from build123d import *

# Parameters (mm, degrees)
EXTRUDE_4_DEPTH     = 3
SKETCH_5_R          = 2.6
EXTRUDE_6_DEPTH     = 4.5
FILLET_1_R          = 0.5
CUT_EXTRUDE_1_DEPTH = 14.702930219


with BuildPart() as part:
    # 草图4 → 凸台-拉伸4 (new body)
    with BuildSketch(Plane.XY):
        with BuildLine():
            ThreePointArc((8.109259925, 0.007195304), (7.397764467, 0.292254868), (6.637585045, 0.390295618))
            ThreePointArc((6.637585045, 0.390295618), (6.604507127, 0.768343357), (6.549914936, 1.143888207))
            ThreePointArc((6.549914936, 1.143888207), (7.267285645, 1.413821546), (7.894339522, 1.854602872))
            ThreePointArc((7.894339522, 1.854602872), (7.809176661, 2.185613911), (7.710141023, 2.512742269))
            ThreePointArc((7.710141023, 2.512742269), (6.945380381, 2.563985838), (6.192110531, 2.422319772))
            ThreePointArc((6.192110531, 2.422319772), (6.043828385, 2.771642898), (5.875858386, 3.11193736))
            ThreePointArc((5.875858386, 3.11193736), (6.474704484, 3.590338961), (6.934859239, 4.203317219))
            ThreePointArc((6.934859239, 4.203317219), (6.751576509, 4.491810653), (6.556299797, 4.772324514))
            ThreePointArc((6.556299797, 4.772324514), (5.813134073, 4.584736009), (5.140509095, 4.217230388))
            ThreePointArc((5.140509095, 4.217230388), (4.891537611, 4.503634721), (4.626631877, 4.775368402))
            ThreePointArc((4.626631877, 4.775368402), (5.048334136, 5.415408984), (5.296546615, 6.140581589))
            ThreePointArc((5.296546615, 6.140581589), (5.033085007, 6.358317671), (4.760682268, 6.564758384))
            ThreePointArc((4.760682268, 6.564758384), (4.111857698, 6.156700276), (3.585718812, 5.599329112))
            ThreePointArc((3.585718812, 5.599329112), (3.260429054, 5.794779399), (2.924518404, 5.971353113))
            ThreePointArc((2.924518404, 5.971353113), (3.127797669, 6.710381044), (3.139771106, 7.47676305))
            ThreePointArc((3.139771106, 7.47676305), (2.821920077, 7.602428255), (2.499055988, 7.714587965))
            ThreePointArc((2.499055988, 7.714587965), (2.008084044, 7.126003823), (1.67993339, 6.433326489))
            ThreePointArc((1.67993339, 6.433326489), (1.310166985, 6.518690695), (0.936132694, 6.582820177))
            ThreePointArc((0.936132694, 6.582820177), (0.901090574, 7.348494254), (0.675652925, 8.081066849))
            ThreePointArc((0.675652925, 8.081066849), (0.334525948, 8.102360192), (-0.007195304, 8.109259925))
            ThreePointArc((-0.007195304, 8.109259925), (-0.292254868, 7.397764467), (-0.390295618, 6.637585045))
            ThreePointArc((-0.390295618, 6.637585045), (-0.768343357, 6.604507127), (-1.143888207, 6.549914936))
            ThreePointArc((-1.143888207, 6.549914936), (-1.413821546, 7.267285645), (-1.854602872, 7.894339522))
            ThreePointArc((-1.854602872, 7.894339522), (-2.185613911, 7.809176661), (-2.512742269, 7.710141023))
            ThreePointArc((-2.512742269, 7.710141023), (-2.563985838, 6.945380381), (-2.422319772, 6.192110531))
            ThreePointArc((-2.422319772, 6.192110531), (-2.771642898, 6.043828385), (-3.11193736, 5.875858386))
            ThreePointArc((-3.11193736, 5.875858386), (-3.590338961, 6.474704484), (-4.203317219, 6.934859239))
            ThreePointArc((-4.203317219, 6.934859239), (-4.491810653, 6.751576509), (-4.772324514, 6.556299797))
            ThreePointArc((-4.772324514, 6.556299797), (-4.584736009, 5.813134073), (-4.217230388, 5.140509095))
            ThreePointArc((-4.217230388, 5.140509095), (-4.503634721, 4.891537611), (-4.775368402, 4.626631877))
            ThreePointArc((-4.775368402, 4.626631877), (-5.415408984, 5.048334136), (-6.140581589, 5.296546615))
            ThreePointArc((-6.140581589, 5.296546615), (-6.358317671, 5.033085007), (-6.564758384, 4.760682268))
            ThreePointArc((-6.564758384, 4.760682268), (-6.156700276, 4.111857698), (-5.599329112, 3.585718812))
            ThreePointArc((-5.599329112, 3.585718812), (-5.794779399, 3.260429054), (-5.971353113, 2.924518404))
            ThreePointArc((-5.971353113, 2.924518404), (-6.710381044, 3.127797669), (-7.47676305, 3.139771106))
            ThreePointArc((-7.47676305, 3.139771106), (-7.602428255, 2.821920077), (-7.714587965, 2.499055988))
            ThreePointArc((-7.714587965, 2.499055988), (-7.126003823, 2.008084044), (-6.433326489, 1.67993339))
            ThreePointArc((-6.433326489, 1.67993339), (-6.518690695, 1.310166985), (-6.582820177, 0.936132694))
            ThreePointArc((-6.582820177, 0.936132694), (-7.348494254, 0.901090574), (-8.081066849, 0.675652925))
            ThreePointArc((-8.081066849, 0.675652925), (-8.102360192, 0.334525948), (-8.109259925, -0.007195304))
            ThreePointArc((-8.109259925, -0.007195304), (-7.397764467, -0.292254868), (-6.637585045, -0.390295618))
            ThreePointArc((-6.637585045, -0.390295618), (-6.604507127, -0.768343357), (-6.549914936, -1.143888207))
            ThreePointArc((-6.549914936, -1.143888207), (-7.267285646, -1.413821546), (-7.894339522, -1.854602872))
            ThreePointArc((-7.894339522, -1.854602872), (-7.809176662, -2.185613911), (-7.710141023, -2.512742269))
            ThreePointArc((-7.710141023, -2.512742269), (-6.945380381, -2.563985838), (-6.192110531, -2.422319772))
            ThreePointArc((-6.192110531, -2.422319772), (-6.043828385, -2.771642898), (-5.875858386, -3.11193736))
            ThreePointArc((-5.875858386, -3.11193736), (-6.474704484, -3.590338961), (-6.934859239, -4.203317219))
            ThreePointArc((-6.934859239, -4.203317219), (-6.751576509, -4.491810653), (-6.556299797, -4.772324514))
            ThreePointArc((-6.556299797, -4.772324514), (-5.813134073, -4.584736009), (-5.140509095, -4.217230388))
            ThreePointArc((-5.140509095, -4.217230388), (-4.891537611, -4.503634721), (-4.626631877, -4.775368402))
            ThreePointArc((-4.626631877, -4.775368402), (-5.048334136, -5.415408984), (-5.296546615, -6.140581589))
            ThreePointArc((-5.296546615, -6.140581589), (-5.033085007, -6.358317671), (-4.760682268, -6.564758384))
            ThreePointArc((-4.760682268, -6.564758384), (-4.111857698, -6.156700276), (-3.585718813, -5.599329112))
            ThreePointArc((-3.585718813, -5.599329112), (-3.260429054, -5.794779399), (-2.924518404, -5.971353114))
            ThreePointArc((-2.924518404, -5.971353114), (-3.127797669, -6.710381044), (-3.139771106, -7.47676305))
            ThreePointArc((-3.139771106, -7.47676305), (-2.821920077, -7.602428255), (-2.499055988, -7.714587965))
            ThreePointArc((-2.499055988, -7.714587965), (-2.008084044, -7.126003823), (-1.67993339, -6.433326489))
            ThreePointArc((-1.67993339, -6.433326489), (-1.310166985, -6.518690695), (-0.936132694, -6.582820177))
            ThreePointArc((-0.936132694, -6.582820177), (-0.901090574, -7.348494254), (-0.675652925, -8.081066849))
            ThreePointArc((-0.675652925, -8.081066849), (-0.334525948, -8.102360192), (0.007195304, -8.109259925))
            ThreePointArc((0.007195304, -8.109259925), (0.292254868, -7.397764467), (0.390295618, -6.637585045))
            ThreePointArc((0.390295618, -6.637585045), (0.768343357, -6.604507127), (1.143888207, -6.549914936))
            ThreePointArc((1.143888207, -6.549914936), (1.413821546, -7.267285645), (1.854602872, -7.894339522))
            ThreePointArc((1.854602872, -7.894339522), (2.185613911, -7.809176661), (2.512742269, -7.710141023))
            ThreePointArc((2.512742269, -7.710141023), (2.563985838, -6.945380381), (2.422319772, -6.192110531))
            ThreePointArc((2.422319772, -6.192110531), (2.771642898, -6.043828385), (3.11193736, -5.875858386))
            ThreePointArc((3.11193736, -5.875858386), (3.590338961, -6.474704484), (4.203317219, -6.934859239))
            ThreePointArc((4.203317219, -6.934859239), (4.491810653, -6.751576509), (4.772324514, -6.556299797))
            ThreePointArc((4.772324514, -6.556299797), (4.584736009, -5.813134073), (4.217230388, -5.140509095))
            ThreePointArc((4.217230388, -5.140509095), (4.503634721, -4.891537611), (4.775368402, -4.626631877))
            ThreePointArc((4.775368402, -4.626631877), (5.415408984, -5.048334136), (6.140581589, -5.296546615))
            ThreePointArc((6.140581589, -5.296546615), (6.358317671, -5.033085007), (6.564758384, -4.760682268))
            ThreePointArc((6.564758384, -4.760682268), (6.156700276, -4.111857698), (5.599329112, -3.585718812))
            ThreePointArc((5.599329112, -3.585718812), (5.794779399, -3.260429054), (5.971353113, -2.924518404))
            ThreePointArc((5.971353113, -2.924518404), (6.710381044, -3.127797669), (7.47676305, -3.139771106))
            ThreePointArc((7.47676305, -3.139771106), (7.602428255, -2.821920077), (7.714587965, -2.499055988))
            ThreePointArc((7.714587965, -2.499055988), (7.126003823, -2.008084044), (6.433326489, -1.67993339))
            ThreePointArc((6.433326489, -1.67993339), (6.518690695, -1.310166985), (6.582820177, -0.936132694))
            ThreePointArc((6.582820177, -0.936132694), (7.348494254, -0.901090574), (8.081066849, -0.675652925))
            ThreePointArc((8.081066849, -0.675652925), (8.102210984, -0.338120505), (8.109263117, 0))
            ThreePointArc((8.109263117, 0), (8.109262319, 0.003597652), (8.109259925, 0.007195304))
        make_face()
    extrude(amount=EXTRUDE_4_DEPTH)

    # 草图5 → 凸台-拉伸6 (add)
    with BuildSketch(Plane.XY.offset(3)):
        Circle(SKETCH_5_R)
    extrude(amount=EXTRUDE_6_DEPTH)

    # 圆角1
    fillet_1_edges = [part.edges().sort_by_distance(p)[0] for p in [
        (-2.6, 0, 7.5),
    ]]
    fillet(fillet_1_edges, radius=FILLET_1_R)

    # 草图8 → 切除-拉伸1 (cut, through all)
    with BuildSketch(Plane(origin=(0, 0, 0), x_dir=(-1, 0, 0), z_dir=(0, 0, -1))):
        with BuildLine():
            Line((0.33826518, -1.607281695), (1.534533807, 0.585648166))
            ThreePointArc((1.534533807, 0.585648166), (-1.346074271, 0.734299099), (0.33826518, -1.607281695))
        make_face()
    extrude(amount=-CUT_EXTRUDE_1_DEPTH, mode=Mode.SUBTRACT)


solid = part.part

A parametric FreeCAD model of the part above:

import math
import FreeCAD as App
import Part
import Sketcher
from FreeCAD import Vector
Q = App.Units.Quantity


def edges_at(feature, points):
    """Names of the edges that pass closest to the given points."""
    edges = feature.Shape.Edges
    near = lambda p: min(range(len(edges)), key=lambda i: edges[i].distToShape(Part.Vertex(*p))[0])
    return sorted({f"Edge{near(p) + 1}" for p in points})

doc = App.newDocument("Part")
params = doc.addObject("Spreadsheet::Sheet", "Params")
for row, (alias, value) in enumerate([
    ("sketch1_radius", "3.04 mm"),
    ("pad1_length", "3 mm"),
    ("sketch2_diameter", "5.2 mm"),
    ("pad2_length", "4.5 mm"),
    ("fillet_radius", "0.5 mm"),
    ("sketch3_radius", "1.6 mm"),
], start=1):
    params.set(f"A{row}", alias)
    params.set(f"B{row}", "=" + value)
    params.setAlias(f"B{row}", alias)

body = doc.addObject("PartDesign::Body", "Body")

# Sketch on XY plane
sketch1 = body.newObject("Sketcher::SketchObject", "Sketch")
sketch1.AttachmentSupport = (doc.getObject("XY_Plane"), [""])
sketch1.MapMode = "FlatFace"
sketch1.addGeometry([
    Part.ArcOfCircle(Part.Circle(Vector(6.632, -2.65, 0), Vector(0, 0, 1), 3.04), math.radians(61), math.radians(90)),  # 0
    Part.ArcOfCircle(Part.Circle(Vector(0, 0, 0), Vector(0, 0, 1), 6.649), math.radians(3.37), math.radians(9.91)),  # 1
    Part.ArcOfCircle(Part.Circle(Vector(5.847, 4.101, 0), Vector(0, 0, 1), 3.04), math.radians(-77), math.radians(-48)),  # 2
    Part.ArcOfCircle(Part.Circle(Vector(0, 0, 0), Vector(0, 0, 1), 8.109), math.radians(13.22), math.radians(18.05)),  # 3
    Part.ArcOfCircle(Part.Circle(Vector(7.126, -0.471, 0), Vector(0, 0, 1), 3.04), math.radians(79), math.radians(108)),  # 4
    Part.ArcOfCircle(Part.Circle(Vector(0, 0, 0), Vector(0, 0, 1), 6.649), math.radians(21.37), math.radians(27.91)),  # 5
    Part.ArcOfCircle(Part.Circle(Vector(4.293, 5.707, 0), Vector(0, 0, 1), 3.04), math.radians(-59), math.radians(-30)),  # 6
    Part.ArcOfCircle(Part.Circle(Vector(0, 0, 0), Vector(0, 0, 1), 8.109), math.radians(31.22), math.radians(36.05)),  # 7
    Part.ArcOfCircle(Part.Circle(Vector(6.923, 1.754, 0), Vector(0, 0, 1), 3.04), math.radians(97), math.radians(126)),  # 8
    Part.ArcOfCircle(Part.Circle(Vector(0, 0, 0), Vector(0, 0, 1), 6.649), math.radians(39.37), math.radians(45.91)),  # 9
    Part.ArcOfCircle(Part.Circle(Vector(2.319, 6.755, 0), Vector(0, 0, 1), 3.04), math.radians(-41), math.radians(-12)),  # 10
    Part.ArcOfCircle(Part.Circle(Vector(0, 0, 0), Vector(0, 0, 1), 8.109), math.radians(49.22), math.radians(54.05)),  # 11
    Part.ArcOfCircle(Part.Circle(Vector(6.042, 3.808, 0), Vector(0, 0, 1), 3.04), math.radians(115), math.radians(144)),  # 12
    Part.ArcOfCircle(Part.Circle(Vector(0, 0, 0), Vector(0, 0, 1), 6.649), math.radians(57.37), math.radians(63.91)),  # 13
    Part.ArcOfCircle(Part.Circle(Vector(0.118, 7.141, 0), Vector(0, 0, 1), 3.04), math.radians(-23), math.radians(6)),  # 14
    Part.ArcOfCircle(Part.Circle(Vector(0, 0, 0), Vector(0, 0, 1), 8.109), math.radians(67.22), math.radians(72.05)),  # 15
    Part.ArcOfCircle(Part.Circle(Vector(4.569, 5.489, 0), Vector(0, 0, 1), 3.04), math.radians(133), math.radians(162)),  # 16
    Part.ArcOfCircle(Part.Circle(Vector(0, 0, 0), Vector(0, 0, 1), 6.649), math.radians(75.37), math.radians(81.91)),  # 17
    Part.ArcOfCircle(Part.Circle(Vector(-2.094, 6.828, 0), Vector(0, 0, 1), 3.04), math.radians(-5), math.radians(24)),  # 18
    Part.ArcOfCircle(Part.Circle(Vector(0, 0, 0), Vector(0, 0, 1), 8.109), math.radians(85.22), math.radians(90.05)),  # 19
    Part.ArcOfCircle(Part.Circle(Vector(2.65, 6.632, 0), Vector(0, 0, 1), 3.04), math.radians(151), math.radians(180)),  # 20
    Part.ArcOfCircle(Part.Circle(Vector(0, 0, 0), Vector(0, 0, 1), 6.649), math.radians(93.37), math.radians(99.91)),  # 21
    Part.ArcOfCircle(Part.Circle(Vector(-4.101, 5.847, 0), Vector(0, 0, 1), 3.04), math.radians(13), math.radians(42)),  # 22
    Part.ArcOfCircle(Part.Circle(Vector(0, 0, 0), Vector(0, 0, 1), 8.109), math.radians(103.22), math.radians(108.05)),  # 23
    Part.ArcOfCircle(Part.Circle(Vector(0.471, 7.126, 0), Vector(0, 0, 1), 3.04), math.radians(169), math.radians(198)),  # 24
    Part.ArcOfCircle(Part.Circle(Vector(0, 0, 0), Vector(0, 0, 1), 6.649), math.radians(111.37), math.radians(117.91)),  # 25
    Part.ArcOfCircle(Part.Circle(Vector(-5.707, 4.293, 0), Vector(0, 0, 1), 3.04), math.radians(31), math.radians(60)),  # 26
    Part.ArcOfCircle(Part.Circle(Vector(0, 0, 0), Vector(0, 0, 1), 8.109), math.radians(121.22), math.radians(126.05)),  # 27
    Part.ArcOfCircle(Part.Circle(Vector(-1.754, 6.923, 0), Vector(0, 0, 1), 3.04), math.radians(-173), math.radians(-144)),  # 28
    Part.ArcOfCircle(Part.Circle(Vector(0, 0, 0), Vector(0, 0, 1), 6.649), math.radians(129.37), math.radians(135.91)),  # 29
    Part.ArcOfCircle(Part.Circle(Vector(-6.755, 2.319, 0), Vector(0, 0, 1), 3.04), math.radians(49), math.radians(78)),  # 30
    Part.ArcOfCircle(Part.Circle(Vector(0, 0, 0), Vector(0, 0, 1), 8.109), math.radians(139.22), math.radians(144.05)),  # 31
    Part.ArcOfCircle(Part.Circle(Vector(-3.808, 6.042, 0), Vector(0, 0, 1), 3.04), math.radians(-155), math.radians(-126)),  # 32
    Part.ArcOfCircle(Part.Circle(Vector(0, 0, 0), Vector(0, 0, 1), 6.649), math.radians(147.37), math.radians(153.91)),  # 33
    Part.ArcOfCircle(Part.Circle(Vector(-7.141, 0.118, 0), Vector(0, 0, 1), 3.04), math.radians(67), math.radians(96)),  # 34
    Part.ArcOfCircle(Part.Circle(Vector(0, 0, 0), Vector(0, 0, 1), 8.109), math.radians(157.22), math.radians(162.05)),  # 35
    Part.ArcOfCircle(Part.Circle(Vector(-5.489, 4.569, 0), Vector(0, 0, 1), 3.04), math.radians(-137), math.radians(-108)),  # 36
    Part.ArcOfCircle(Part.Circle(Vector(0, 0, 0), Vector(0, 0, 1), 6.649), math.radians(165.37), math.radians(171.91)),  # 37
    Part.ArcOfCircle(Part.Circle(Vector(-6.828, -2.094, 0), Vector(0, 0, 1), 3.04), math.radians(85), math.radians(114)),  # 38
    Part.ArcOfCircle(Part.Circle(Vector(0, 0, 0), Vector(0, 0, 1), 8.109), math.radians(175.22), math.radians(180.05)),  # 39
    Part.ArcOfCircle(Part.Circle(Vector(-6.632, 2.65, 0), Vector(0, 0, 1), 3.04), math.radians(-119), math.radians(-90)),  # 40
    Part.ArcOfCircle(Part.Circle(Vector(0, 0, 0), Vector(0, 0, 1), 6.649), math.radians(-176.63), math.radians(-170.09)),  # 41
    Part.ArcOfCircle(Part.Circle(Vector(-5.847, -4.101, 0), Vector(0, 0, 1), 3.04), math.radians(103), math.radians(132)),  # 42
    Part.ArcOfCircle(Part.Circle(Vector(0, 0, 0), Vector(0, 0, 1), 8.109), math.radians(-166.78), math.radians(-161.95)),  # 43
    Part.ArcOfCircle(Part.Circle(Vector(-7.126, 0.471, 0), Vector(0, 0, 1), 3.04), math.radians(-101), math.radians(-72)),  # 44
    Part.ArcOfCircle(Part.Circle(Vector(0, 0, 0), Vector(0, 0, 1), 6.649), math.radians(-158.63), math.radians(-152.09)),  # 45
    Part.ArcOfCircle(Part.Circle(Vector(-4.293, -5.707, 0), Vector(0, 0, 1), 3.04), math.radians(121), math.radians(150)),  # 46
    Part.ArcOfCircle(Part.Circle(Vector(0, 0, 0), Vector(0, 0, 1), 8.109), math.radians(-148.78), math.radians(-143.95)),  # 47
    Part.ArcOfCircle(Part.Circle(Vector(-6.923, -1.754, 0), Vector(0, 0, 1), 3.04), math.radians(-83), math.radians(-54)),  # 48
    Part.ArcOfCircle(Part.Circle(Vector(0, 0, 0), Vector(0, 0, 1), 6.649), math.radians(-140.63), math.radians(-134.09)),  # 49
    Part.ArcOfCircle(Part.Circle(Vector(-2.319, -6.755, 0), Vector(0, 0, 1), 3.04), math.radians(139), math.radians(168)),  # 50
    Part.ArcOfCircle(Part.Circle(Vector(0, 0, 0), Vector(0, 0, 1), 8.109), math.radians(-130.78), math.radians(-125.95)),  # 51
    Part.ArcOfCircle(Part.Circle(Vector(-6.042, -3.808, 0), Vector(0, 0, 1), 3.04), math.radians(-65), math.radians(-36)),  # 52
    Part.ArcOfCircle(Part.Circle(Vector(0, 0, 0), Vector(0, 0, 1), 6.649), math.radians(-122.63), math.radians(-116.09)),  # 53
    Part.ArcOfCircle(Part.Circle(Vector(-0.118, -7.141, 0), Vector(0, 0, 1), 3.04), math.radians(157), math.radians(186)),  # 54
    Part.ArcOfCircle(Part.Circle(Vector(0, 0, 0), Vector(0, 0, 1), 8.109), math.radians(-112.78), math.radians(-107.95)),  # 55
    Part.ArcOfCircle(Part.Circle(Vector(-4.569, -5.489, 0), Vector(0, 0, 1), 3.04), math.radians(-47), math.radians(-18)),  # 56
    Part.ArcOfCircle(Part.Circle(Vector(0, 0, 0), Vector(0, 0, 1), 6.649), math.radians(-104.63), math.radians(-98.09)),  # 57
    Part.ArcOfCircle(Part.Circle(Vector(2.094, -6.828, 0), Vector(0, 0, 1), 3.04), math.radians(175), math.radians(204)),  # 58
    Part.ArcOfCircle(Part.Circle(Vector(0, 0, 0), Vector(0, 0, 1), 8.109), math.radians(-94.78), math.radians(-89.95)),  # 59
    Part.ArcOfCircle(Part.Circle(Vector(-2.65, -6.632, 0), Vector(0, 0, 1), 3.04), math.radians(-29), math.radians(0)),  # 60
    Part.ArcOfCircle(Part.Circle(Vector(0, 0, 0), Vector(0, 0, 1), 6.649), math.radians(-86.63), math.radians(-80.09)),  # 61
    Part.ArcOfCircle(Part.Circle(Vector(4.101, -5.847, 0), Vector(0, 0, 1), 3.04), math.radians(-167), math.radians(-138)),  # 62
    Part.ArcOfCircle(Part.Circle(Vector(0, 0, 0), Vector(0, 0, 1), 8.109), math.radians(-76.78), math.radians(-71.95)),  # 63
    Part.ArcOfCircle(Part.Circle(Vector(-0.471, -7.126, 0), Vector(0, 0, 1), 3.04), math.radians(-11), math.radians(18)),  # 64
    Part.ArcOfCircle(Part.Circle(Vector(0, 0, 0), Vector(0, 0, 1), 6.649), math.radians(-68.63), math.radians(-62.09)),  # 65
    Part.ArcOfCircle(Part.Circle(Vector(5.707, -4.293, 0), Vector(0, 0, 1), 3.04), math.radians(-149), math.radians(-120)),  # 66
    Part.ArcOfCircle(Part.Circle(Vector(0, 0, 0), Vector(0, 0, 1), 8.109), math.radians(-58.78), math.radians(-53.95)),  # 67
    Part.ArcOfCircle(Part.Circle(Vector(1.754, -6.923, 0), Vector(0, 0, 1), 3.04), math.radians(7), math.radians(36)),  # 68
    Part.ArcOfCircle(Part.Circle(Vector(0, 0, 0), Vector(0, 0, 1), 6.649), math.radians(-50.63), math.radians(-44.09)),  # 69
    Part.ArcOfCircle(Part.Circle(Vector(6.755, -2.319, 0), Vector(0, 0, 1), 3.04), math.radians(-131), math.radians(-102)),  # 70
    Part.ArcOfCircle(Part.Circle(Vector(0, 0, 0), Vector(0, 0, 1), 8.109), math.radians(-40.78), math.radians(-35.95)),  # 71
    Part.ArcOfCircle(Part.Circle(Vector(3.808, -6.042, 0), Vector(0, 0, 1), 3.04), math.radians(25), math.radians(54)),  # 72
    Part.ArcOfCircle(Part.Circle(Vector(0, 0, 0), Vector(0, 0, 1), 6.649), math.radians(-32.63), math.radians(-26.09)),  # 73
    Part.ArcOfCircle(Part.Circle(Vector(7.141, -0.118, 0), Vector(0, 0, 1), 3.04), math.radians(-113), math.radians(-84)),  # 74
    Part.ArcOfCircle(Part.Circle(Vector(0, 0, 0), Vector(0, 0, 1), 8.109), math.radians(-22.78), math.radians(-17.95)),  # 75
    Part.ArcOfCircle(Part.Circle(Vector(5.489, -4.569, 0), Vector(0, 0, 1), 3.04), math.radians(43), math.radians(72)),  # 76
    Part.ArcOfCircle(Part.Circle(Vector(0, 0, 0), Vector(0, 0, 1), 6.649), math.radians(-14.63), math.radians(-8.09)),  # 77
    Part.ArcOfCircle(Part.Circle(Vector(6.828, 2.094, 0), Vector(0, 0, 1), 3.04), math.radians(-95), math.radians(-66)),  # 78
    Part.ArcOfCircle(Part.Circle(Vector(0, 0, 0), Vector(0, 0, 1), 8.109), math.radians(-4.78), math.radians(0)),  # 79
    Part.ArcOfCircle(Part.Circle(Vector(0, 0, 0), Vector(0, 0, 1), 8.11), math.radians(0), math.radians(0.05)),  # 80
], False)
sketch1.addConstraint([
    Sketcher.Constraint("Coincident", 0, 2, 1, 1),
    Sketcher.Constraint("Coincident", 1, 2, 2, 1),
    Sketcher.Constraint("Coincident", 2, 2, 3, 1),
    Sketcher.Constraint("Coincident", 3, 2, 4, 1),
    Sketcher.Constraint("Coincident", 4, 2, 5, 1),
    Sketcher.Constraint("Coincident", 5, 2, 6, 1),
    Sketcher.Constraint("Coincident", 6, 2, 7, 1),
    Sketcher.Constraint("Coincident", 7, 2, 8, 1),
    Sketcher.Constraint("Coincident", 8, 2, 9, 1),
    Sketcher.Constraint("Coincident", 9, 2, 10, 1),
    Sketcher.Constraint("Coincident", 10, 2, 11, 1),
    Sketcher.Constraint("Coincident", 11, 2, 12, 1),
    Sketcher.Constraint("Coincident", 12, 2, 13, 1),
    Sketcher.Constraint("Coincident", 13, 2, 14, 1),
    Sketcher.Constraint("Coincident", 14, 2, 15, 1),
    Sketcher.Constraint("Coincident", 15, 2, 16, 1),
    Sketcher.Constraint("Coincident", 16, 2, 17, 1),
    Sketcher.Constraint("Coincident", 17, 2, 18, 1),
    Sketcher.Constraint("Coincident", 18, 2, 19, 1),
    Sketcher.Constraint("Coincident", 19, 2, 20, 1),
    Sketcher.Constraint("Coincident", 20, 2, 21, 1),
    Sketcher.Constraint("Coincident", 21, 2, 22, 1),
    Sketcher.Constraint("Coincident", 22, 2, 23, 1),
    Sketcher.Constraint("Coincident", 23, 2, 24, 1),
    Sketcher.Constraint("Coincident", 24, 2, 25, 1),
    Sketcher.Constraint("Coincident", 25, 2, 26, 1),
    Sketcher.Constraint("Coincident", 26, 2, 27, 1),
    Sketcher.Constraint("Coincident", 27, 2, 28, 1),
    Sketcher.Constraint("Coincident", 28, 2, 29, 1),
    Sketcher.Constraint("Coincident", 29, 2, 30, 1),
    Sketcher.Constraint("Coincident", 30, 2, 31, 1),
    Sketcher.Constraint("Coincident", 31, 2, 32, 1),
    Sketcher.Constraint("Coincident", 32, 2, 33, 1),
    Sketcher.Constraint("Coincident", 33, 2, 34, 1),
    Sketcher.Constraint("Coincident", 34, 2, 35, 1),
    Sketcher.Constraint("Coincident", 35, 2, 36, 1),
    Sketcher.Constraint("Coincident", 36, 2, 37, 1),
    Sketcher.Constraint("Coincident", 37, 2, 38, 1),
    Sketcher.Constraint("Coincident", 38, 2, 39, 1),
    Sketcher.Constraint("Coincident", 39, 2, 40, 1),
    Sketcher.Constraint("Coincident", 40, 2, 41, 1),
    Sketcher.Constraint("Coincident", 41, 2, 42, 1),
    Sketcher.Constraint("Coincident", 42, 2, 43, 1),
    Sketcher.Constraint("Coincident", 43, 2, 44, 1),
    Sketcher.Constraint("Coincident", 44, 2, 45, 1),
    Sketcher.Constraint("Coincident", 45, 2, 46, 1),
    Sketcher.Constraint("Coincident", 46, 2, 47, 1),
    Sketcher.Constraint("Coincident", 47, 2, 48, 1),
    Sketcher.Constraint("Coincident", 48, 2, 49, 1),
    Sketcher.Constraint("Coincident", 49, 2, 50, 1),
    Sketcher.Constraint("Coincident", 50, 2, 51, 1),
    Sketcher.Constraint("Coincident", 51, 2, 52, 1),
    Sketcher.Constraint("Coincident", 52, 2, 53, 1),
    Sketcher.Constraint("Coincident", 53, 2, 54, 1),
    Sketcher.Constraint("Coincident", 54, 2, 55, 1),
    Sketcher.Constraint("Coincident", 55, 2, 56, 1),
    Sketcher.Constraint("Coincident", 56, 2, 57, 1),
    Sketcher.Constraint("Coincident", 57, 2, 58, 1),
    Sketcher.Constraint("Coincident", 58, 2, 59, 1),
    Sketcher.Constraint("Coincident", 59, 2, 60, 1),
    Sketcher.Constraint("Coincident", 60, 2, 61, 1),
    Sketcher.Constraint("Coincident", 61, 2, 62, 1),
    Sketcher.Constraint("Coincident", 62, 2, 63, 1),
    Sketcher.Constraint("Coincident", 63, 2, 64, 1),
    Sketcher.Constraint("Coincident", 64, 2, 65, 1),
    Sketcher.Constraint("Coincident", 65, 2, 66, 1),
    Sketcher.Constraint("Coincident", 66, 2, 67, 1),
    Sketcher.Constraint("Coincident", 67, 2, 68, 1),
    Sketcher.Constraint("Coincident", 68, 2, 69, 1),
    Sketcher.Constraint("Coincident", 69, 2, 70, 1),
    Sketcher.Constraint("Coincident", 70, 2, 71, 1),
    Sketcher.Constraint("Coincident", 71, 2, 72, 1),
    Sketcher.Constraint("Coincident", 72, 2, 73, 1),
    Sketcher.Constraint("Coincident", 73, 2, 74, 1),
    Sketcher.Constraint("Coincident", 74, 2, 75, 1),
    Sketcher.Constraint("Coincident", 75, 2, 76, 1),
    Sketcher.Constraint("Coincident", 76, 2, 77, 1),
    Sketcher.Constraint("Coincident", 77, 2, 78, 1),
    Sketcher.Constraint("Coincident", 78, 2, 79, 1),
    Sketcher.Constraint("Tangent", 79, 2, 80, 1),
    Sketcher.Constraint("Coincident", 80, 2, 0, 1),
    Sketcher.Constraint("Coincident", 1, 3, -1, 1),
    Sketcher.Constraint("Coincident", 3, 3, -1, 1),
    Sketcher.Constraint("Coincident", 5, 3, -1, 1),
    Sketcher.Constraint("Coincident", 7, 3, -1, 1),
    Sketcher.Constraint("Coincident", 9, 3, -1, 1),
    Sketcher.Constraint("Coincident", 11, 3, -1, 1),
    Sketcher.Constraint("Coincident", 13, 3, -1, 1),
    Sketcher.Constraint("Coincident", 15, 3, -1, 1),
    Sketcher.Constraint("Coincident", 17, 3, -1, 1),
    Sketcher.Constraint("Coincident", 19, 3, -1, 1),
    Sketcher.Constraint("Coincident", 21, 3, -1, 1),
    Sketcher.Constraint("Coincident", 23, 3, -1, 1),
    Sketcher.Constraint("Coincident", 25, 3, -1, 1),
    Sketcher.Constraint("Coincident", 27, 3, -1, 1),
    Sketcher.Constraint("Coincident", 29, 3, -1, 1),
    Sketcher.Constraint("Coincident", 31, 3, -1, 1),
    Sketcher.Constraint("Coincident", 33, 3, -1, 1),
    Sketcher.Constraint("Coincident", 35, 3, -1, 1),
    Sketcher.Constraint("Coincident", 37, 3, -1, 1),
    Sketcher.Constraint("Coincident", 39, 3, -1, 1),
    Sketcher.Constraint("Coincident", 41, 3, -1, 1),
    Sketcher.Constraint("Coincident", 43, 3, -1, 1),
    Sketcher.Constraint("Coincident", 45, 3, -1, 1),
    Sketcher.Constraint("Coincident", 47, 3, -1, 1),
    Sketcher.Constraint("Coincident", 49, 3, -1, 1),
    Sketcher.Constraint("Coincident", 51, 3, -1, 1),
    Sketcher.Constraint("Coincident", 53, 3, -1, 1),
    Sketcher.Constraint("Coincident", 55, 3, -1, 1),
    Sketcher.Constraint("Coincident", 57, 3, -1, 1),
    Sketcher.Constraint("Coincident", 59, 3, -1, 1),
    Sketcher.Constraint("Coincident", 61, 3, -1, 1),
    Sketcher.Constraint("Coincident", 63, 3, -1, 1),
    Sketcher.Constraint("Coincident", 65, 3, -1, 1),
    Sketcher.Constraint("Coincident", 67, 3, -1, 1),
    Sketcher.Constraint("Coincident", 69, 3, -1, 1),
    Sketcher.Constraint("Coincident", 71, 3, -1, 1),
    Sketcher.Constraint("Coincident", 73, 3, -1, 1),
    Sketcher.Constraint("Coincident", 75, 3, -1, 1),
    Sketcher.Constraint("Coincident", 77, 3, -1, 1),
    Sketcher.Constraint("Coincident", 79, 3, -1, 1),
    Sketcher.Constraint("Equal", 0, 2),
    Sketcher.Constraint("Equal", 2, 4),
    Sketcher.Constraint("Equal", 1, 5),
    Sketcher.Constraint("Equal", 4, 6),
    Sketcher.Constraint("Equal", 3, 7),
    Sketcher.Constraint("Equal", 6, 8),
    Sketcher.Constraint("Equal", 5, 9),
    Sketcher.Constraint("Equal", 8, 10),
    Sketcher.Constraint("Equal", 7, 11),
    Sketcher.Constraint("Equal", 10, 12),
    Sketcher.Constraint("Equal", 9, 13),
    Sketcher.Constraint("Equal", 12, 14),
    Sketcher.Constraint("Equal", 11, 15),
    Sketcher.Constraint("Equal", 14, 16),
    Sketcher.Constraint("Equal", 13, 17),
    Sketcher.Constraint("Equal", 16, 18),
    Sketcher.Constraint("Equal", 15, 19),
    Sketcher.Constraint("Equal", 18, 20),
    Sketcher.Constraint("Equal", 17, 21),
    Sketcher.Constraint("Equal", 20, 22),
    Sketcher.Constraint("Equal", 19, 23),
    Sketcher.Constraint("Equal", 22, 24),
    Sketcher.Constraint("Equal", 21, 25),
    Sketcher.Constraint("Equal", 24, 26),
    Sketcher.Constraint("Equal", 23, 27),
    Sketcher.Constraint("Equal", 26, 28),
    Sketcher.Constraint("Equal", 25, 29),
    Sketcher.Constraint("Equal", 28, 30),
    Sketcher.Constraint("Equal", 27, 31),
    Sketcher.Constraint("Equal", 30, 32),
    Sketcher.Constraint("Equal", 29, 33),
    Sketcher.Constraint("Equal", 32, 34),
    Sketcher.Constraint("Equal", 31, 35),
    Sketcher.Constraint("Equal", 34, 36),
    Sketcher.Constraint("Equal", 33, 37),
    Sketcher.Constraint("Equal", 36, 38),
    Sketcher.Constraint("Equal", 35, 39),
    Sketcher.Constraint("Equal", 38, 40),
    Sketcher.Constraint("Equal", 37, 41),
    Sketcher.Constraint("Equal", 40, 42),
    Sketcher.Constraint("Equal", 39, 43),
    Sketcher.Constraint("Equal", 42, 44),
    Sketcher.Constraint("Equal", 41, 45),
    Sketcher.Constraint("Equal", 44, 46),
    Sketcher.Constraint("Equal", 43, 47),
    Sketcher.Constraint("Equal", 46, 48),
    Sketcher.Constraint("Equal", 45, 49),
    Sketcher.Constraint("Equal", 48, 50),
    Sketcher.Constraint("Equal", 47, 51),
    Sketcher.Constraint("Equal", 50, 52),
    Sketcher.Constraint("Equal", 49, 53),
    Sketcher.Constraint("Equal", 52, 54),
    Sketcher.Constraint("Equal", 51, 55),
    Sketcher.Constraint("Equal", 54, 56),
    Sketcher.Constraint("Equal", 53, 57),
    Sketcher.Constraint("Equal", 56, 58),
    Sketcher.Constraint("Equal", 55, 59),
    Sketcher.Constraint("Equal", 58, 60),
    Sketcher.Constraint("Equal", 57, 61),
    Sketcher.Constraint("Equal", 60, 62),
    Sketcher.Constraint("Equal", 59, 63),
    Sketcher.Constraint("Equal", 62, 64),
    Sketcher.Constraint("Equal", 61, 65),
    Sketcher.Constraint("Equal", 64, 66),
    Sketcher.Constraint("Equal", 63, 67),
    Sketcher.Constraint("Equal", 66, 68),
    Sketcher.Constraint("Equal", 65, 69),
    Sketcher.Constraint("Equal", 68, 70),
    Sketcher.Constraint("Equal", 67, 71),
    Sketcher.Constraint("Equal", 70, 72),
    Sketcher.Constraint("Equal", 69, 73),
    Sketcher.Constraint("Equal", 72, 74),
    Sketcher.Constraint("Equal", 71, 75),
    Sketcher.Constraint("Equal", 74, 76),
    Sketcher.Constraint("Equal", 73, 77),
    Sketcher.Constraint("Equal", 76, 78),
    Sketcher.Constraint("Equal", 75, 79),
    Sketcher.Constraint("Symmetric", 0, 3, 40, 3, -1, 1),
    Sketcher.Constraint("Symmetric", 2, 3, 42, 3, -1, 1),
    Sketcher.Constraint("Symmetric", 4, 3, 44, 3, -1, 1),
    Sketcher.Constraint("Symmetric", 6, 3, 46, 3, -1, 1),
    Sketcher.Constraint("Symmetric", 8, 3, 48, 3, -1, 1),
    Sketcher.Constraint("Symmetric", 10, 3, 50, 3, -1, 1),
    Sketcher.Constraint("Symmetric", 12, 3, 52, 3, -1, 1),
    Sketcher.Constraint("Symmetric", 14, 3, 54, 3, -1, 1),
    Sketcher.Constraint("Symmetric", 16, 3, 56, 3, -1, 1),
    Sketcher.Constraint("Symmetric", 18, 3, 58, 3, -1, 1),
    Sketcher.Constraint("Symmetric", 20, 3, 60, 3, -1, 1),
    Sketcher.Constraint("Symmetric", 22, 3, 62, 3, -1, 1),
    Sketcher.Constraint("Symmetric", 24, 3, 64, 3, -1, 1),
    Sketcher.Constraint("Symmetric", 26, 3, 66, 3, -1, 1),
    Sketcher.Constraint("Symmetric", 28, 3, 68, 3, -1, 1),
    Sketcher.Constraint("Symmetric", 30, 3, 70, 3, -1, 1),
    Sketcher.Constraint("Symmetric", 32, 3, 72, 3, -1, 1),
    Sketcher.Constraint("Symmetric", 34, 3, 74, 3, -1, 1),
    Sketcher.Constraint("Symmetric", 36, 3, 76, 3, -1, 1),
    Sketcher.Constraint("Symmetric", 38, 3, 78, 3, -1, 1),
    Sketcher.Constraint("PointOnObject", 79, 2, -1),
    Sketcher.Constraint("Radius", 0, Q("3.04 mm")),
    Sketcher.Constraint("Radius", 1, Q("6.64905 mm")),
    Sketcher.Constraint("Radius", 3, Q("8.109264 mm")),
    Sketcher.Constraint("Radius", 80, Q("8.109714 mm")),
    Sketcher.Constraint("DistanceY", 0, 3, -1, 1, Q("2.649699 mm")),
    Sketcher.Constraint("DistanceX", -1, 1, 12, 3, Q("6.041801 mm")),
    Sketcher.Constraint("DistanceX", -1, 1, 20, 3, Q("2.649699 mm")),
    Sketcher.Constraint("DistanceY", -1, 1, 32, 3, Q("6.041801 mm")),
    Sketcher.Constraint("DistanceX", -1, 1, 7, 2, Q("6.5563 mm")),
    Sketcher.Constraint("DistanceY", -1, 1, 27, 2, Q("6.5563 mm")),
    Sketcher.Constraint("DistanceX", -1, 1, 2, 3, Q("5.84653 mm")),
    Sketcher.Constraint("DistanceX", -1, 1, 4, 3, Q("7.12614 mm")),
    Sketcher.Constraint("DistanceX", -1, 1, 6, 3, Q("4.29298 mm")),
    Sketcher.Constraint("DistanceX", -1, 1, 16, 3, Q("4.569392 mm")),
    Sketcher.Constraint("DistanceX", 18, 3, -1, 1, Q("2.093982 mm")),
    Sketcher.Constraint("DistanceY", -1, 1, 18, 3, Q("6.827782 mm")),
    Sketcher.Constraint("DistanceY", -1, 1, 22, 3, Q("5.84653 mm")),
    Sketcher.Constraint("DistanceY", -1, 1, 24, 3, Q("7.12614 mm")),
    Sketcher.Constraint("DistanceY", -1, 1, 26, 3, Q("4.29298 mm")),
    Sketcher.Constraint("DistanceY", -1, 1, 36, 3, Q("4.569392 mm")),
    Sketcher.Constraint("DistanceX", 38, 3, -1, 1, Q("6.827782 mm")),
    Sketcher.Constraint("DistanceY", 38, 3, -1, 1, Q("2.093982 mm")),
    Sketcher.Constraint("DistanceY", -1, 1, 1, 2, Q("1.143888 mm")),
    Sketcher.Constraint("DistanceX", -1, 1, 3, 2, Q("7.710141 mm")),
    Sketcher.Constraint("DistanceX", -1, 1, 5, 2, Q("5.875858 mm")),
    Sketcher.Constraint("DistanceX", -1, 1, 8, 2, Q("5.140509 mm")),
    Sketcher.Constraint("DistanceX", -1, 1, 9, 2, Q("4.626632 mm")),
    Sketcher.Constraint("DistanceY", -1, 1, 10, 2, Q("6.140582 mm")),
    Sketcher.Constraint("DistanceY", -1, 1, 11, 2, Q("6.564758 mm")),
    Sketcher.Constraint("DistanceX", -1, 1, 13, 2, Q("2.924518 mm")),
    Sketcher.Constraint("DistanceX", -1, 1, 14, 2, Q("3.139771 mm")),
    Sketcher.Constraint("DistanceX", 21, 2, -1, 1, Q("1.143888 mm")),
    Sketcher.Constraint("DistanceY", -1, 1, 23, 2, Q("7.710141 mm")),
    Sketcher.Constraint("DistanceY", -1, 1, 25, 2, Q("5.875858 mm")),
    Sketcher.Constraint("DistanceX", 28, 2, -1, 1, Q("4.21723 mm")),
    Sketcher.Constraint("DistanceX", 29, 2, -1, 1, Q("4.775368 mm")),
    Sketcher.Constraint("DistanceX", 30, 2, -1, 1, Q("6.140582 mm")),
    Sketcher.Constraint("DistanceX", 31, 2, -1, 1, Q("6.564758 mm")),
    Sketcher.Constraint("DistanceY", -1, 1, 33, 2, Q("2.924518 mm")),
    Sketcher.Constraint("DistanceY", -1, 1, 34, 2, Q("3.139771 mm")),
    Sketcher.Constraint("DistanceX", -1, 1, 0, 3, Q("6.631927 mm")),
    Sketcher.Constraint("DistanceY", -1, 1, 16, 3, Q("5.488535 mm")),
    Sketcher.Constraint("DistanceY", -1, 1, 20, 3, Q("6.631927 mm")),
    Sketcher.Constraint("DistanceX", 36, 3, -1, 1, Q("5.488535 mm")),
])
sketch1.setExpression("Constraints[219]", "Params.sketch1_radius")
pad1 = body.newObject("PartDesign::Pad", "Pad")
pad1.Profile = sketch1
pad1.setExpression("Length", "Params.pad1_length")

# Sketch on XY plane
sketch2 = body.newObject("Sketcher::SketchObject", "Sketch001")
sketch2.AttachmentSupport = (doc.getObject("XY_Plane"), [""])
sketch2.MapMode = "FlatFace"
sketch2.AttachmentOffset = App.Placement(Vector(0, 0, 3), App.Rotation())
sketch2.addGeometry(Part.Circle(Vector(0, 0, 0), Vector(0, 0, 1), 2.6), False)
sketch2.addConstraint([
    Sketcher.Constraint("Coincident", 0, 3, -1, 1),
    Sketcher.Constraint("Diameter", 0, Q("5.2 mm")),
])
sketch2.setExpression("Constraints[1]", "Params.sketch2_diameter")
pad2 = body.newObject("PartDesign::Pad", "Pad001")
pad2.Profile = sketch2
pad2.setExpression("Length", "Params.pad2_length")
doc.recompute()

fillet = body.newObject("PartDesign::Fillet", "Fillet")
fillet.Base = (pad2, edges_at(pad2, [(-2.6, 0, 7.5)]))
fillet.setExpression("Radius", "Params.fillet_radius")

# Sketch on XY plane
sketch3 = body.newObject("Sketcher::SketchObject", "Sketch002")
sketch3.AttachmentSupport = (doc.getObject("XY_Plane"), [""])
sketch3.MapMode = "FlatFace"
sketch3.addGeometry([
    Part.LineSegment(Vector(-0.3, -1.6, 0), Vector(-1.5, 0.6, 0)),
    Part.ArcOfCircle(Part.Circle(Vector(-0.1, 0, 0), Vector(0, 0, 1), 1.6), math.radians(-100), math.radians(157)),
], False)
sketch3.addConstraint([
    Sketcher.Constraint("Coincident", 0, 1, 1, 1),
    Sketcher.Constraint("Coincident", 1, 2, 0, 2),
    Sketcher.Constraint("Radius", 1, Q("1.6 mm")),
    Sketcher.Constraint("Distance", 0, Q("2.497999 mm")),
    Sketcher.Constraint("DistanceY", 0, 1, -1, 1, Q("1.607282 mm")),
    Sketcher.Constraint("DistanceY", -1, 1, 1, 2, Q("0.585648 mm")),
    Sketcher.Constraint("DistanceX", 1, 3, -1, 1, Q("0.058525 mm")),
])
sketch3.setExpression("Constraints[2]", "Params.sketch3_radius")
pocket1 = body.newObject("PartDesign::Pocket", "Pocket")
pocket1.Profile = sketch3
pocket1.Type = "ThroughAll"
pocket1.Reversed = True

doc.recompute()
